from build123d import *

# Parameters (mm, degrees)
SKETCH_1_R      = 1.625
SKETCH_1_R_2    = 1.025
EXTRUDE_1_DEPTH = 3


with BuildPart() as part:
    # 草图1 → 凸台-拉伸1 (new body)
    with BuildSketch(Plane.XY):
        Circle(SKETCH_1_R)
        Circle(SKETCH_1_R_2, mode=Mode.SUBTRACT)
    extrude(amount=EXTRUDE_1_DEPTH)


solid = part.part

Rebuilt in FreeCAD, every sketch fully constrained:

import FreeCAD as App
import Part
import Sketcher
from FreeCAD import Vector
Q = App.Units.Quantity

doc = App.newDocument("Part")
body = doc.addObject("PartDesign::Body", "Body")

# Sketch on XY plane
sketch1 = body.newObject("Sketcher::SketchObject", "Sketch")
sketch1.AttachmentSupport = (doc.getObject("XY_Plane"), [""])
sketch1.MapMode = "FlatFace"
sketch1.addGeometry([
    Part.Circle(Vector(0, 0, 0), Vector(0, 0, 1), 1.6),
    Part.Circle(Vector(0, 0, 0), Vector(0, 0, 1), 1),
], False)
sketch1.addConstraint([
    Sketcher.Constraint("Coincident", 0, 3, -1, 1),
    Sketcher.Constraint("Coincident", 1, 3, -1, 1),
    Sketcher.Constraint("Diameter", 0, Q("3.25 mm")),
    Sketcher.Constraint("Diameter", 1, Q("2.05 mm")),
])
pad1 = body.newObject("PartDesign::Pad", "Pad")
pad1.Profile = sketch1
pad1.Length = 3

doc.recompute()
